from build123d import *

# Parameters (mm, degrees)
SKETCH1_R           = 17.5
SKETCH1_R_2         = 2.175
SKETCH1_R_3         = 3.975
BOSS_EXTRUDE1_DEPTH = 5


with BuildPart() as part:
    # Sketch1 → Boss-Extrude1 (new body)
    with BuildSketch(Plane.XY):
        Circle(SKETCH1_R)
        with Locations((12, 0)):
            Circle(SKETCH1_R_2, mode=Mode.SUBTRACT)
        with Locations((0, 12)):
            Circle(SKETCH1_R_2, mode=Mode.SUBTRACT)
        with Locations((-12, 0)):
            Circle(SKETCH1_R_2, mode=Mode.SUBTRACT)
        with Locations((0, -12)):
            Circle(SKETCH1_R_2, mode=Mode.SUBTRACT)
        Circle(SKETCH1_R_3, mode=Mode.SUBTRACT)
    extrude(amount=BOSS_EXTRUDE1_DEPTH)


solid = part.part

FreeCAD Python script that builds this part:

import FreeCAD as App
import Part
import Sketcher

doc = App.newDocument("Part")
body = doc.addObject("PartDesign::Body", "Body")

sketch1 = doc.addObject("Sketcher::SketchObject", "Sketch")
body.addObject(sketch1)
sketch1.AttachmentSupport = (doc.XY_Plane, [""])
sketch1.MapMode = "FlatFace"
sketch1.addGeometry([
    Part.Circle(App.Vector(0, 0, 0), App.Vector(0, 0, 1), 17.5),
    Part.Circle(App.Vector(0, -12, 0), App.Vector(0, 0, 1), 2.2),
    Part.Circle(App.Vector(-12, 0, 0), App.Vector(0, 0, 1), 2.2),
    Part.Circle(App.Vector(0, 0, 0), App.Vector(0, 0, 1), 4),
    Part.Circle(App.Vector(12, 0, 0), App.Vector(0, 0, 1), 2.2),
    Part.Circle(App.Vector(0, 12, 0), App.Vector(0, 0, 1), 2.2),
], False)
sketch1.addConstraint([
    Sketcher.Constraint("Coincident", 0, 3, -1, 1),
    Sketcher.Constraint("Coincident", 3, 3, -1, 1),
    Sketcher.Constraint("Equal", 1, 2),
    Sketcher.Constraint("Equal", 2, 4),
    Sketcher.Constraint("Equal", 4, 5),
    Sketcher.Constraint("Symmetric", 2, 3, 4, 3, -1, 1),
    Sketcher.Constraint("Symmetric", 1, 3, 5, 3, -1, 1),
    Sketcher.Constraint("PointOnObject", 1, 3, -2),
    Sketcher.Constraint("PointOnObject", 2, 3, -1),
    Sketcher.Constraint("Diameter", 0, 35.0),
    Sketcher.Constraint("Diameter", 1, 4.35),
    Sketcher.Constraint("Diameter", 3, 7.95),
    Sketcher.Constraint("DistanceY", 1, 3, -1, 1, 12.0),
    Sketcher.Constraint("DistanceX", 2, 3, -1, 1, 12.0),
])
pad1 = doc.addObject("PartDesign::Pad", "Pad")
body.addObject(pad1)
pad1.Profile = sketch1
pad1.Length = 5

doc.recompute()
